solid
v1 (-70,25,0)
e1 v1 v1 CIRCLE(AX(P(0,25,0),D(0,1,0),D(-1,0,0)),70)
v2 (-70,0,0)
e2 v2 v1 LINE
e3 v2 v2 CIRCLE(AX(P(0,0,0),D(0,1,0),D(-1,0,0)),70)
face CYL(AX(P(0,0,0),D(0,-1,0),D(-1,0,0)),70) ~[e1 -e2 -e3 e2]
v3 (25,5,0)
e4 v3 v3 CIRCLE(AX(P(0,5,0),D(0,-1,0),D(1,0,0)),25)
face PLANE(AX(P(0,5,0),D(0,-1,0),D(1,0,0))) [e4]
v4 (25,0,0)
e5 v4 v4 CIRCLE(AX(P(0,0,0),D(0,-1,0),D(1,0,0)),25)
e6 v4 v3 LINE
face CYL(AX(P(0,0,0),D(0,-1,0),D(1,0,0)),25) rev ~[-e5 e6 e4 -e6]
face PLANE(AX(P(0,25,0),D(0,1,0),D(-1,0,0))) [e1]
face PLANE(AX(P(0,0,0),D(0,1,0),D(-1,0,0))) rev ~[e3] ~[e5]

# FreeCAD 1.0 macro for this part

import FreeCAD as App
import Part
import Sketcher

V = App.Vector

doc = App.newDocument("Part")
params = doc.addObject("Spreadsheet::Sheet", "Params")
for row, (alias, value) in enumerate([
    ("sketch1_diameter", "140 mm"),
    ("pad1_length", "25 mm"),
    ("sketch2_diameter", "50 mm"),
    ("pocket1_length", "5 mm"),
], start=1):
    params.set(f"A{row}", alias)
    params.set(f"B{row}", "=" + value)
    params.setAlias(f"B{row}", alias)

body = doc.addObject("PartDesign::Body", "Body")

sketch1 = body.newObject("Sketcher::SketchObject", "Sketch")
sketch1.AttachmentSupport = (doc.getObject("XZ_Plane"), [""])
sketch1.MapMode = "FlatFace"
sketch1.addGeometry(Part.Circle(V(0, 0, 0), V(0, 0, 1), 70), False)
sketch1.addConstraint([
    Sketcher.Constraint("Coincident", 0, 3, -1, 1),
    Sketcher.Constraint("Diameter", 0, 140.0),
])
sketch1.setExpression("Constraints[1]", "Params.sketch1_diameter")
pad1 = body.newObject("PartDesign::Pad", "Pad")
pad1.Profile = sketch1
pad1.setExpression("Length", "Params.pad1_length")
pad1.Reversed = True

sketch2 = body.newObject("Sketcher::SketchObject", "Sketch001")
sketch2.AttachmentSupport = (doc.getObject("XZ_Plane"), [""])
sketch2.MapMode = "FlatFace"
sketch2.addGeometry(Part.Circle(V(0, 0, 0), V(0, 0, 1), 25), False)
sketch2.addConstraint([
    Sketcher.Constraint("Coincident", 0, 3, -1, 1),
    Sketcher.Constraint("Diameter", 0, 50.0),
])
sketch2.setExpression("Constraints[1]", "Params.sketch2_diameter")
pocket1 = body.newObject("PartDesign::Pocket", "Pocket")
pocket1.Profile = sketch2
pocket1.setExpression("Length", "Params.pocket1_length")

doc.recompute()
